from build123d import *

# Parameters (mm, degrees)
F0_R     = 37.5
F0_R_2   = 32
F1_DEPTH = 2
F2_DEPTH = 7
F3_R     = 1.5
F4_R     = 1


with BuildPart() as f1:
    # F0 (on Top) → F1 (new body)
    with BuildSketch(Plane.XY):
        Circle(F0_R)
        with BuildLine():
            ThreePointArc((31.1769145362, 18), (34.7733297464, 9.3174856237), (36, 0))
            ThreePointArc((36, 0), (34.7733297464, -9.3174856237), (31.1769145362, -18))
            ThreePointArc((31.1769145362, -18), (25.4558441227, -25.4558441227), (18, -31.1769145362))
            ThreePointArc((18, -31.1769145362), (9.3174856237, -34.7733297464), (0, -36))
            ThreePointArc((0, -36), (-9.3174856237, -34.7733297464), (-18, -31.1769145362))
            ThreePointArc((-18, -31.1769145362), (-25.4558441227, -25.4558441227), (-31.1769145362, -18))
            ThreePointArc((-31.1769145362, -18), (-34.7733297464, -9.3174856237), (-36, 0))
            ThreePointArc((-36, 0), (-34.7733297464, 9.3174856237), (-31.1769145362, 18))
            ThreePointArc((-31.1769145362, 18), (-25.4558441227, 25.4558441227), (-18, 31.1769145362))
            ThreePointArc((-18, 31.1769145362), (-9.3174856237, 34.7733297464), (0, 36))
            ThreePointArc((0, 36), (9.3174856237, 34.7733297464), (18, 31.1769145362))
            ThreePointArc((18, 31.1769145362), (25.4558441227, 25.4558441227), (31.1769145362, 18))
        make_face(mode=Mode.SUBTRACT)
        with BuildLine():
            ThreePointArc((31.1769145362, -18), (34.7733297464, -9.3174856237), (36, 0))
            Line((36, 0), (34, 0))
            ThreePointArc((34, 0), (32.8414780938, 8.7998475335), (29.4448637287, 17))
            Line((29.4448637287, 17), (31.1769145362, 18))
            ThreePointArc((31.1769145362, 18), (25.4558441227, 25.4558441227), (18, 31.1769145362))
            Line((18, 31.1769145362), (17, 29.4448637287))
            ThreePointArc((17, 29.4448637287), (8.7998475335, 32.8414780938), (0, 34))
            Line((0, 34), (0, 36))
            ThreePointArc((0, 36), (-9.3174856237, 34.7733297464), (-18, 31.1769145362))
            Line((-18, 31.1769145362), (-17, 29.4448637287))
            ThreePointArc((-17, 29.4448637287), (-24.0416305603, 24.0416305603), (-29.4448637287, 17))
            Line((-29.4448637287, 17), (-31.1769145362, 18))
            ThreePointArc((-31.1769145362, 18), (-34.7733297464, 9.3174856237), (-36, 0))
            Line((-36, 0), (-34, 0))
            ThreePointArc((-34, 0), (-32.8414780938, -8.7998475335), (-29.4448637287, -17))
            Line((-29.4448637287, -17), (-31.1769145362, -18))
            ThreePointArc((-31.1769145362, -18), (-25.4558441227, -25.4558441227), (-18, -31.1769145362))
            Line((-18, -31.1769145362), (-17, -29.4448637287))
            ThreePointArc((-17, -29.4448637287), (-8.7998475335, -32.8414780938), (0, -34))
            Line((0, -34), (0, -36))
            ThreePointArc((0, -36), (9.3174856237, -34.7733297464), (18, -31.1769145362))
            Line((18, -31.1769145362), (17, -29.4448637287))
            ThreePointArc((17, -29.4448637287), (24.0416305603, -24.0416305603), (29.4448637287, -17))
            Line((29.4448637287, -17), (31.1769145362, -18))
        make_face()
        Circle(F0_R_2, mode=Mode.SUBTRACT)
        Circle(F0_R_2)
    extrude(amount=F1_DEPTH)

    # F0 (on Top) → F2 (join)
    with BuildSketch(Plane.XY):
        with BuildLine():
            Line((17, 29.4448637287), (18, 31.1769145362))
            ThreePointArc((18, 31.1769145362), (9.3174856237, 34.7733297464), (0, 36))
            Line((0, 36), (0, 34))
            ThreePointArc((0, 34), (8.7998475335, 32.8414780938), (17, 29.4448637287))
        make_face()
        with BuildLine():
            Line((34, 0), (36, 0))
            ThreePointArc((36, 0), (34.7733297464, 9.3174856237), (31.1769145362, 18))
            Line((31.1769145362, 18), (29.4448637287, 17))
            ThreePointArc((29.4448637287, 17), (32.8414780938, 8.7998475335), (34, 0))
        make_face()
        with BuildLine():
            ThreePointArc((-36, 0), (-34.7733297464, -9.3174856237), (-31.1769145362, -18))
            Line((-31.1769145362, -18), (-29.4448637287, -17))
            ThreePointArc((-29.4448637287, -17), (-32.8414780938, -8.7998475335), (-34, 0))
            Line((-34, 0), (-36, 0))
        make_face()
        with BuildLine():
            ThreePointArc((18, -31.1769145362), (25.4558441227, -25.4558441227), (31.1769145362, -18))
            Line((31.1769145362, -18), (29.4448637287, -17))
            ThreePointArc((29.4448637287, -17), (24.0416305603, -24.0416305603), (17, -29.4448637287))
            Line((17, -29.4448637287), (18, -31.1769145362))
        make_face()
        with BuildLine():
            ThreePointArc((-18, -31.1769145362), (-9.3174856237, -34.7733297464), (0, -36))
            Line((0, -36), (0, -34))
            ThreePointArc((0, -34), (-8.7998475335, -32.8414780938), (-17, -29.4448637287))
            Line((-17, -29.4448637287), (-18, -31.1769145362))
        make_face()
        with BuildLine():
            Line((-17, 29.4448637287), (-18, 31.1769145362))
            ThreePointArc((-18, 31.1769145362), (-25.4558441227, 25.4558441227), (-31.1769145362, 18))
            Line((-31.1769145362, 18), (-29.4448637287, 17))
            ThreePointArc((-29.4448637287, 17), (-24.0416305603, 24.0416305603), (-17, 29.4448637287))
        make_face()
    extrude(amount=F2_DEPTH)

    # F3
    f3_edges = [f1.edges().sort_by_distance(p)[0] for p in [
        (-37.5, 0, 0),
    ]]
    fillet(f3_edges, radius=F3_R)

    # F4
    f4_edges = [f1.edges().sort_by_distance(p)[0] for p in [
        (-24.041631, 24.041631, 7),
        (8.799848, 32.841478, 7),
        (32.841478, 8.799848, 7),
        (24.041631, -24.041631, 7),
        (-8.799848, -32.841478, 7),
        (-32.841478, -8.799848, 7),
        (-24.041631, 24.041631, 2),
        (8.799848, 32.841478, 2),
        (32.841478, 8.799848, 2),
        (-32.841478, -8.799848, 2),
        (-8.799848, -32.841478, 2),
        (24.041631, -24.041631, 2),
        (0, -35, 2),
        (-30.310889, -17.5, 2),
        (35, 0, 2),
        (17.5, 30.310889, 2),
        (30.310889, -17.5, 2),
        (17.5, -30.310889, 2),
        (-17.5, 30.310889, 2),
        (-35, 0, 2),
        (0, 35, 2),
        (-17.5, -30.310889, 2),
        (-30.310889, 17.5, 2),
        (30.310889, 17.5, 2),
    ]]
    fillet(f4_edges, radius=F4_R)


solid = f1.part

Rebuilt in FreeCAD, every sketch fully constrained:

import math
import FreeCAD as App
import Part
import Sketcher
from FreeCAD import Vector
Q = App.Units.Quantity


def edges_at(feature, points):
    """Names of the edges that pass closest to the given points."""
    edges = feature.Shape.Edges
    near = lambda p: min(range(len(edges)), key=lambda i: edges[i].distToShape(Part.Vertex(*p))[0])
    return sorted({f"Edge{near(p) + 1}" for p in points})

doc = App.newDocument("Part")
body = doc.addObject("PartDesign::Body", "Body")

sketch1 = body.newObject("Sketcher::SketchObject", "Sketch")
sketch1.AttachmentSupport = (doc.getObject("XY_Plane"), [""])
sketch1.MapMode = "FlatFace"
sketch1.addGeometry(Part.Circle(Vector(0, 0, 0), Vector(0, 0, 1), 37.5), False)
sketch1.addGeometry(Part.ArcOfCircle(Part.Circle(Vector(0, 0, 0), Vector(0, 0, 1), 36), math.radians(-120), math.radians(-90)), False)
sketch1.addGeometry(Part.LineSegment(Vector(-18, -31.2, 0), Vector(-17, -29.4, 0)), False)
sketch1.addGeometry(Part.ArcOfCircle(Part.Circle(Vector(0, 0, 0), Vector(0, 0, 1), 34), math.radians(-120), math.radians(-90)), False)
sketch1.addGeometry(Part.LineSegment(Vector(0, -34, 0), Vector(0, -36, 0)), False)
sketch1.addGeometry(Part.ArcOfCircle(Part.Circle(Vector(0, 0, 0), Vector(0, 0, 1), 36), math.radians(180), math.radians(210)), False)
sketch1.addGeometry(Part.LineSegment(Vector(-36, 0, 0), Vector(-34, 0, 0)), False)
sketch1.addGeometry(Part.ArcOfCircle(Part.Circle(Vector(0, 0, 0), Vector(0, 0, 1), 34), math.radians(180), math.radians(210)), False)
sketch1.addGeometry(Part.LineSegment(Vector(-29.4, -17, 0), Vector(-31.2, -18, 0)), False)
sketch1.addGeometry(Part.ArcOfCircle(Part.Circle(Vector(0, 0, 0), Vector(0, 0, 1), 36), math.radians(-60), math.radians(-30)), False)
sketch1.addGeometry(Part.LineSegment(Vector(18, -31.2, 0), Vector(17, -29.4, 0)), False)
sketch1.addGeometry(Part.ArcOfCircle(Part.Circle(Vector(0, 0, 0), Vector(0, 0, 1), 34), math.radians(-60), math.radians(-30)), False)
sketch1.addGeometry(Part.LineSegment(Vector(29.4, -17, 0), Vector(31.2, -18, 0)), False)
sketch1.addGeometry(Part.ArcOfCircle(Part.Circle(Vector(0, 0, 0), Vector(0, 0, 1), 36), math.radians(120), math.radians(150)), False)
sketch1.addGeometry(Part.LineSegment(Vector(-18, 31.2, 0), Vector(-17, 29.4, 0)), False)
sketch1.addGeometry(Part.ArcOfCircle(Part.Circle(Vector(0, 0, 0), Vector(0, 0, 1), 34), math.radians(120), math.radians(150)), False)
sketch1.addGeometry(Part.LineSegment(Vector(-29.4, 17, 0), Vector(-31.2, 18, 0)), False)
sketch1.addGeometry(Part.ArcOfCircle(Part.Circle(Vector(0, 0, 0), Vector(0, 0, 1), 36), math.radians(0), math.radians(30)), False)
sketch1.addGeometry(Part.LineSegment(Vector(36, 0, 0), Vector(34, 0, 0)), False)
sketch1.addGeometry(Part.ArcOfCircle(Part.Circle(Vector(0, 0, 0), Vector(0, 0, 1), 34), math.radians(0), math.radians(30)), False)
sketch1.addGeometry(Part.LineSegment(Vector(29.4, 17, 0), Vector(31.2, 18, 0)), False)
sketch1.addGeometry(Part.ArcOfCircle(Part.Circle(Vector(0, 0, 0), Vector(0, 0, 1), 36), math.radians(60), math.radians(90)), False)
sketch1.addGeometry(Part.LineSegment(Vector(18, 31.2, 0), Vector(17, 29.4, 0)), False)
sketch1.addGeometry(Part.ArcOfCircle(Part.Circle(Vector(0, 0, 0), Vector(0, 0, 1), 34), math.radians(60), math.radians(90)), False)
sketch1.addGeometry(Part.LineSegment(Vector(0, 34, 0), Vector(0, 36, 0)), False)
sketch1.addConstraint(Sketcher.Constraint("Coincident", 1, 1, 2, 1))
sketch1.addConstraint(Sketcher.Constraint("Coincident", 2, 2, 3, 1))
sketch1.addConstraint(Sketcher.Constraint("Coincident", 3, 2, 4, 1))
sketch1.addConstraint(Sketcher.Constraint("Coincident", 4, 2, 1, 2))
sketch1.addConstraint(Sketcher.Constraint("Coincident", 5, 1, 6, 1))
sketch1.addConstraint(Sketcher.Constraint("Coincident", 6, 2, 7, 1))
sketch1.addConstraint(Sketcher.Constraint("Coincident", 7, 2, 8, 1))
sketch1.addConstraint(Sketcher.Constraint("Coincident", 8, 2, 5, 2))
sketch1.addConstraint(Sketcher.Constraint("Coincident", 9, 1, 10, 1))
sketch1.addConstraint(Sketcher.Constraint("Coincident", 10, 2, 11, 1))
sketch1.addConstraint(Sketcher.Constraint("Coincident", 11, 2, 12, 1))
sketch1.addConstraint(Sketcher.Constraint("Coincident", 12, 2, 9, 2))
sketch1.addConstraint(Sketcher.Constraint("Coincident", 13, 1, 14, 1))
sketch1.addConstraint(Sketcher.Constraint("Coincident", 14, 2, 15, 1))
sketch1.addConstraint(Sketcher.Constraint("Coincident", 15, 2, 16, 1))
sketch1.addConstraint(Sketcher.Constraint("Coincident", 16, 2, 13, 2))
sketch1.addConstraint(Sketcher.Constraint("Coincident", 17, 1, 18, 1))
sketch1.addConstraint(Sketcher.Constraint("Coincident", 18, 2, 19, 1))
sketch1.addConstraint(Sketcher.Constraint("Coincident", 19, 2, 20, 1))
sketch1.addConstraint(Sketcher.Constraint("Coincident", 20, 2, 17, 2))
sketch1.addConstraint(Sketcher.Constraint("Coincident", 21, 1, 22, 1))
sketch1.addConstraint(Sketcher.Constraint("Coincident", 22, 2, 23, 1))
sketch1.addConstraint(Sketcher.Constraint("Coincident", 23, 2, 24, 1))
sketch1.addConstraint(Sketcher.Constraint("Coincident", 24, 2, 21, 2))
sketch1.addConstraint(Sketcher.Constraint("Vertical", 4))
sketch1.addConstraint(Sketcher.Constraint("Horizontal", 6))
sketch1.addConstraint(Sketcher.Constraint("Horizontal", 18))
sketch1.addConstraint(Sketcher.Constraint("Vertical", 24))
sketch1.addConstraint(Sketcher.Constraint("Coincident", 0, 3, -1, 1))
sketch1.addConstraint(Sketcher.Constraint("Coincident", 1, 3, -1, 1))
sketch1.addConstraint(Sketcher.Constraint("Coincident", 3, 3, -1, 1))
sketch1.addConstraint(Sketcher.Constraint("Coincident", 5, 3, -1, 1))
sketch1.addConstraint(Sketcher.Constraint("Coincident", 7, 3, -1, 1))
sketch1.addConstraint(Sketcher.Constraint("Coincident", 9, 3, -1, 1))
sketch1.addConstraint(Sketcher.Constraint("Coincident", 11, 3, -1, 1))
sketch1.addConstraint(Sketcher.Constraint("Coincident", 13, 3, -1, 1))
sketch1.addConstraint(Sketcher.Constraint("Coincident", 15, 3, -1, 1))
sketch1.addConstraint(Sketcher.Constraint("Coincident", 17, 3, -1, 1))
sketch1.addConstraint(Sketcher.Constraint("Coincident", 19, 3, -1, 1))
sketch1.addConstraint(Sketcher.Constraint("Coincident", 21, 3, -1, 1))
sketch1.addConstraint(Sketcher.Constraint("Coincident", 23, 3, -1, 1))
sketch1.addConstraint(Sketcher.Constraint("Equal", 1, 5))
sketch1.addConstraint(Sketcher.Constraint("Equal", 3, 7))
sketch1.addConstraint(Sketcher.Constraint("Equal", 5, 9))
sketch1.addConstraint(Sketcher.Constraint("Equal", 7, 11))
sketch1.addConstraint(Sketcher.Constraint("Equal", 9, 13))
sketch1.addConstraint(Sketcher.Constraint("Equal", 11, 15))
sketch1.addConstraint(Sketcher.Constraint("Equal", 13, 17))
sketch1.addConstraint(Sketcher.Constraint("Equal", 15, 19))
sketch1.addConstraint(Sketcher.Constraint("Equal", 17, 21))
sketch1.addConstraint(Sketcher.Constraint("Equal", 19, 23))
sketch1.addConstraint(Sketcher.Constraint("PointOnObject", 3, 2, -2))
sketch1.addConstraint(Sketcher.Constraint("PointOnObject", 5, 1, -1))
sketch1.addConstraint(Sketcher.Constraint("PointOnObject", 17, 1, -1))
sketch1.addConstraint(Sketcher.Constraint("PointOnObject", 23, 2, -2))
sketch1.addConstraint(Sketcher.Constraint("Perpendicular", 8, 10))
sketch1.addConstraint(Sketcher.Constraint("Perpendicular", 2, 12))
sketch1.addConstraint(Sketcher.Constraint("Parallel", 10, 14))
sketch1.addConstraint(Sketcher.Constraint("Parallel", 12, 16))
sketch1.addConstraint(Sketcher.Constraint("Perpendicular", 14, 20))
sketch1.addConstraint(Sketcher.Constraint("Perpendicular", 16, 22))
sketch1.addConstraint(Sketcher.Constraint("Horizontal", 1, 1, 9, 1))
sketch1.addConstraint(Sketcher.Constraint("Horizontal", 2, 2, 10, 2))
sketch1.addConstraint(Sketcher.Constraint("Horizontal", 7, 2, 11, 2))
sketch1.addConstraint(Sketcher.Constraint("Horizontal", 15, 2, 19, 2))
sketch1.addConstraint(Sketcher.Constraint("Horizontal", 13, 1, 21, 1))
sketch1.addConstraint(Sketcher.Constraint("Vertical", 1, 1, 13, 1))
sketch1.addConstraint(Sketcher.Constraint("Vertical", 7, 2, 15, 2))
sketch1.addConstraint(Sketcher.Constraint("Diameter", 0, Q("75 mm")))
sketch1.addConstraint(Sketcher.Constraint("Radius", 1, Q("36 mm")))
sketch1.addConstraint(Sketcher.Constraint("Radius", 3, Q("34 mm")))
sketch1.addConstraint(Sketcher.Constraint("Angle", 2, Q("60 deg")))
sketch1.addConstraint(Sketcher.Constraint("DistanceX", 1, 1, -1, 1, Q("18 mm")))
sketch1.addConstraint(Sketcher.Constraint("DistanceY", 7, 2, -1, 1, Q("17 mm")))
pad1 = body.newObject("PartDesign::Pad", "Pad")
pad1.Profile = sketch1
pad1.Length = 2

sketch2 = body.newObject("Sketcher::SketchObject", "Sketch001")
sketch2.AttachmentSupport = (doc.getObject("XY_Plane"), [""])
sketch2.MapMode = "FlatFace"
sketch2.addGeometry(Part.LineSegment(Vector(17, 29.4, 0), Vector(18, 31.2, 0)), False)
sketch2.addGeometry(Part.ArcOfCircle(Part.Circle(Vector(0, 0, 0), Vector(0, 0, 1), 36), math.radians(60), math.radians(90)), False)
sketch2.addGeometry(Part.LineSegment(Vector(0, 36, 0), Vector(0, 34, 0)), False)
sketch2.addGeometry(Part.ArcOfCircle(Part.Circle(Vector(0, 0, 0), Vector(0, 0, 1), 34), math.radians(60), math.radians(90)), False)
sketch2.addGeometry(Part.LineSegment(Vector(34, 0, 0), Vector(36, 0, 0)), False)
sketch2.addGeometry(Part.ArcOfCircle(Part.Circle(Vector(0, 0, 0), Vector(0, 0, 1), 36), math.radians(0), math.radians(30)), False)
sketch2.addGeometry(Part.LineSegment(Vector(31.2, 18, 0), Vector(29.4, 17, 0)), False)
sketch2.addGeometry(Part.ArcOfCircle(Part.Circle(Vector(0, 0, 0), Vector(0, 0, 1), 34), math.radians(0), math.radians(30)), False)
sketch2.addGeometry(Part.ArcOfCircle(Part.Circle(Vector(0, 0, 0), Vector(0, 0, 1), 36), math.radians(180), math.radians(210)), False)
sketch2.addGeometry(Part.LineSegment(Vector(-31.2, -18, 0), Vector(-29.4, -17, 0)), False)
sketch2.addGeometry(Part.ArcOfCircle(Part.Circle(Vector(0, 0, 0), Vector(0, 0, 1), 34), math.radians(180), math.radians(210)), False)
sketch2.addGeometry(Part.LineSegment(Vector(-34, 0, 0), Vector(-36, 0, 0)), False)
sketch2.addGeometry(Part.ArcOfCircle(Part.Circle(Vector(0, 0, 0), Vector(0, 0, 1), 36), math.radians(-60), math.radians(-30)), False)
sketch2.addGeometry(Part.LineSegment(Vector(31.2, -18, 0), Vector(29.4, -17, 0)), False)
sketch2.addGeometry(Part.ArcOfCircle(Part.Circle(Vector(0, 0, 0), Vector(0, 0, 1), 34), math.radians(-60), math.radians(-30)), False)
sketch2.addGeometry(Part.LineSegment(Vector(17, -29.4, 0), Vector(18, -31.2, 0)), False)
sketch2.addGeometry(Part.ArcOfCircle(Part.Circle(Vector(0, 0, 0), Vector(0, 0, 1), 36), math.radians(-120), math.radians(-90)), False)
sketch2.addGeometry(Part.LineSegment(Vector(0, -36, 0), Vector(0, -34, 0)), False)
sketch2.addGeometry(Part.ArcOfCircle(Part.Circle(Vector(0, 0, 0), Vector(0, 0, 1), 34), math.radians(-120), math.radians(-90)), False)
sketch2.addGeometry(Part.LineSegment(Vector(-17, -29.4, 0), Vector(-18, -31.2, 0)), False)
sketch2.addGeometry(Part.LineSegment(Vector(-17, 29.4, 0), Vector(-18, 31.2, 0)), False)
sketch2.addGeometry(Part.ArcOfCircle(Part.Circle(Vector(0, 0, 0), Vector(0, 0, 1), 36), math.radians(120), math.radians(150)), False)
sketch2.addGeometry(Part.LineSegment(Vector(-31.2, 18, 0), Vector(-29.4, 17, 0)), False)
sketch2.addGeometry(Part.ArcOfCircle(Part.Circle(Vector(0, 0, 0), Vector(0, 0, 1), 34), math.radians(120), math.radians(150)), False)
sketch2.addConstraint(Sketcher.Constraint("Coincident", 0, 2, 1, 1))
sketch2.addConstraint(Sketcher.Constraint("Coincident", 1, 2, 2, 1))
sketch2.addConstraint(Sketcher.Constraint("Coincident", 2, 2, 3, 2))
sketch2.addConstraint(Sketcher.Constraint("Coincident", 3, 1, 0, 1))
sketch2.addConstraint(Sketcher.Constraint("Coincident", 4, 2, 5, 1))
sketch2.addConstraint(Sketcher.Constraint("Coincident", 5, 2, 6, 1))
sketch2.addConstraint(Sketcher.Constraint("Coincident", 6, 2, 7, 2))
sketch2.addConstraint(Sketcher.Constraint("Coincident", 7, 1, 4, 1))
sketch2.addConstraint(Sketcher.Constraint("Coincident", 8, 2, 9, 1))
sketch2.addConstraint(Sketcher.Constraint("Coincident", 9, 2, 10, 2))
sketch2.addConstraint(Sketcher.Constraint("Coincident", 10, 1, 11, 1))
sketch2.addConstraint(Sketcher.Constraint("Coincident", 11, 2, 8, 1))
sketch2.addConstraint(Sketcher.Constraint("Coincident", 12, 2, 13, 1))
sketch2.addConstraint(Sketcher.Constraint("Coincident", 13, 2, 14, 2))
sketch2.addConstraint(Sketcher.Constraint("Coincident", 14, 1, 15, 1))
sketch2.addConstraint(Sketcher.Constraint("Coincident", 15, 2, 12, 1))
sketch2.addConstraint(Sketcher.Constraint("Coincident", 16, 2, 17, 1))
sketch2.addConstraint(Sketcher.Constraint("Coincident", 17, 2, 18, 2))
sketch2.addConstraint(Sketcher.Constraint("Coincident", 18, 1, 19, 1))
sketch2.addConstraint(Sketcher.Constraint("Coincident", 19, 2, 16, 1))
sketch2.addConstraint(Sketcher.Constraint("Coincident", 20, 2, 21, 1))
sketch2.addConstraint(Sketcher.Constraint("Coincident", 21, 2, 22, 1))
sketch2.addConstraint(Sketcher.Constraint("Coincident", 22, 2, 23, 2))
sketch2.addConstraint(Sketcher.Constraint("Coincident", 23, 1, 20, 1))
sketch2.addConstraint(Sketcher.Constraint("Vertical", 2))
sketch2.addConstraint(Sketcher.Constraint("Horizontal", 4))
sketch2.addConstraint(Sketcher.Constraint("Horizontal", 11))
sketch2.addConstraint(Sketcher.Constraint("Vertical", 17))
sketch2.addConstraint(Sketcher.Constraint("Coincident", 1, 3, -1, 1))
sketch2.addConstraint(Sketcher.Constraint("Coincident", 3, 3, -1, 1))
sketch2.addConstraint(Sketcher.Constraint("Coincident", 5, 3, -1, 1))
sketch2.addConstraint(Sketcher.Constraint("Coincident", 7, 3, -1, 1))
sketch2.addConstraint(Sketcher.Constraint("Coincident", 8, 3, -1, 1))
sketch2.addConstraint(Sketcher.Constraint("Coincident", 10, 3, -1, 1))
sketch2.addConstraint(Sketcher.Constraint("Coincident", 12, 3, -1, 1))
sketch2.addConstraint(Sketcher.Constraint("Coincident", 14, 3, -1, 1))
sketch2.addConstraint(Sketcher.Constraint("Coincident", 16, 3, -1, 1))
sketch2.addConstraint(Sketcher.Constraint("Coincident", 18, 3, -1, 1))
sketch2.addConstraint(Sketcher.Constraint("Coincident", 21, 3, -1, 1))
sketch2.addConstraint(Sketcher.Constraint("Coincident", 23, 3, -1, 1))
sketch2.addConstraint(Sketcher.Constraint("Equal", 1, 5))
sketch2.addConstraint(Sketcher.Constraint("Equal", 3, 7))
sketch2.addConstraint(Sketcher.Constraint("Equal", 5, 8))
sketch2.addConstraint(Sketcher.Constraint("Equal", 7, 10))
sketch2.addConstraint(Sketcher.Constraint("Equal", 8, 12))
sketch2.addConstraint(Sketcher.Constraint("Equal", 10, 14))
sketch2.addConstraint(Sketcher.Constraint("Equal", 12, 16))
sketch2.addConstraint(Sketcher.Constraint("Equal", 14, 18))
sketch2.addConstraint(Sketcher.Constraint("Equal", 16, 21))
sketch2.addConstraint(Sketcher.Constraint("Equal", 18, 23))
sketch2.addConstraint(Sketcher.Constraint("PointOnObject", 1, 2, -2))
sketch2.addConstraint(Sketcher.Constraint("PointOnObject", 4, 2, -1))
sketch2.addConstraint(Sketcher.Constraint("PointOnObject", 10, 1, -1))
sketch2.addConstraint(Sketcher.Constraint("PointOnObject", 16, 2, -2))
sketch2.addConstraint(Sketcher.Constraint("Parallel", 6, 9))
sketch2.addConstraint(Sketcher.Constraint("Perpendicular", 0, 13))
sketch2.addConstraint(Sketcher.Constraint("Perpendicular", 9, 15))
sketch2.addConstraint(Sketcher.Constraint("Perpendicular", 13, 19))
sketch2.addConstraint(Sketcher.Constraint("Parallel", 15, 20))
sketch2.addConstraint(Sketcher.Constraint("Perpendicular", 19, 22))
sketch2.addConstraint(Sketcher.Constraint("Horizontal", 8, 2, 12, 2))
sketch2.addConstraint(Sketcher.Constraint("Horizontal", 9, 2, 13, 2))
sketch2.addConstraint(Sketcher.Constraint("Horizontal", 14, 1, 18, 1))
sketch2.addConstraint(Sketcher.Constraint("Horizontal", 0, 2, 20, 2))
sketch2.addConstraint(Sketcher.Constraint("Horizontal", 5, 2, 21, 2))
sketch2.addConstraint(Sketcher.Constraint("Vertical", 5, 2, 12, 2))
sketch2.addConstraint(Sketcher.Constraint("Vertical", 3, 1, 14, 1))
sketch2.addConstraint(Sketcher.Constraint("Radius", 1, Q("36 mm")))
sketch2.addConstraint(Sketcher.Constraint("Radius", 3, Q("34 mm")))
sketch2.addConstraint(Sketcher.Constraint("Angle", 0, Q("60 deg")))
sketch2.addConstraint(Sketcher.Constraint("DistanceX", -1, 1, 0, 2, Q("18 mm")))
sketch2.addConstraint(Sketcher.Constraint("DistanceY", -1, 1, 5, 2, Q("18 mm")))
pad2 = body.newObject("PartDesign::Pad", "Pad001")
pad2.Profile = sketch2
pad2.Length = 7
doc.recompute()

fillet = body.newObject("PartDesign::Fillet", "Fillet")
fillet.Base = (pad2, edges_at(pad2, [(-37.5, 0, 0)]))
fillet.Radius = 1.5
doc.recompute()

fillet2 = body.newObject("PartDesign::Fillet", "Fillet001")
fillet2.Base = (fillet, edges_at(fillet, [
    (-24.042, 24.042, 7),
    (8.8, 32.841, 7),
    (32.841, 8.8, 7),
    (24.042, -24.042, 7),
    (-8.8, -32.841, 7),
    (-32.841, -8.8, 7),
    (-24.042, 24.042, 2),
    (8.8, 32.841, 2),
    (32.841, 8.8, 2),
    (-32.841, -8.8, 2),
    (-8.8, -32.841, 2),
    (24.042, -24.042, 2),
    (0, -35, 2),
    (-30.311, -17.5, 2),
    (35, 0, 2),
    (17.5, 30.311, 2),
    (30.311, -17.5, 2),
    (17.5, -30.311, 2),
    (-17.5, 30.311, 2),
    (-35, 0, 2),
    (0, 35, 2),
    (-17.5, -30.311, 2),
    (-30.311, 17.5, 2),
    (30.311, 17.5, 2),
]))
fillet2.Radius = 1

doc.recompute()
